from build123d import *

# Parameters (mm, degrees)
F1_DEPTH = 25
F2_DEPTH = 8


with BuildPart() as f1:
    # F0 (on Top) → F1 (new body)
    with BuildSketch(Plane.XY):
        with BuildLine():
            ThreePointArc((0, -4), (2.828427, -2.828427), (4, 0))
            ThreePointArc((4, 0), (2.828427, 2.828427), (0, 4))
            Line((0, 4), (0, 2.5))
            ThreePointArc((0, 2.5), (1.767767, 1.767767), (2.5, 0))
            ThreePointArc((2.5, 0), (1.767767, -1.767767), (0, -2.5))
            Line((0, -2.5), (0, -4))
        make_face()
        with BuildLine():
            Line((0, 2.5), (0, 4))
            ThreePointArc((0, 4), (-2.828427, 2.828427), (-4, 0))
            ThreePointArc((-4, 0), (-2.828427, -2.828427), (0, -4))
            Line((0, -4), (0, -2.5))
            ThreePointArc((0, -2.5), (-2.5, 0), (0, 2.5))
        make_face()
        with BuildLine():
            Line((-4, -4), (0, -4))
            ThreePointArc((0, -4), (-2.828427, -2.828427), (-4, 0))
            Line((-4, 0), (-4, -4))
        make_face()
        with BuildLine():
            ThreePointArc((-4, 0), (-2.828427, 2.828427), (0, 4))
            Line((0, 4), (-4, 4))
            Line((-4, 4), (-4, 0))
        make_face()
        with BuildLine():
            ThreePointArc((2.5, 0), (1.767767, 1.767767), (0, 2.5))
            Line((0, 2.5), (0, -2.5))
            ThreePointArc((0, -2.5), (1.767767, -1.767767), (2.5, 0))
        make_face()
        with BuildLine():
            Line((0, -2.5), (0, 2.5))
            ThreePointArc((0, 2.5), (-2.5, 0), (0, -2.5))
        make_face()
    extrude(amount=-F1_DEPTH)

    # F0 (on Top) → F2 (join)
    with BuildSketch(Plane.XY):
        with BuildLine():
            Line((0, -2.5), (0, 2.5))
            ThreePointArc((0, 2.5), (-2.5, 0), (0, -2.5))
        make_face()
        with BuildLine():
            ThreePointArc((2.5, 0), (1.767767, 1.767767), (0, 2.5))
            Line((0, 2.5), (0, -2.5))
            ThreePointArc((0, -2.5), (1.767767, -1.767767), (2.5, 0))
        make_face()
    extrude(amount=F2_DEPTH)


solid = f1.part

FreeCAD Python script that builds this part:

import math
import FreeCAD as App
import Part
import Sketcher

V = App.Vector
Q = App.Units.Quantity

doc = App.newDocument("Part")
params = doc.addObject("Spreadsheet::Sheet", "Params")
for row, (alias, value) in enumerate([
    ("sketch1_radius", "4 mm"),
    ("sketch1_width", "4 mm"),
    ("pad1_length", "25 mm"),
    ("sketch2_radius", "2.5 mm"),
    ("pad2_length", "8 mm"),
], start=1):
    params.set(f"A{row}", alias)
    params.set(f"B{row}", "=" + value)
    params.setAlias(f"B{row}", alias)

body = doc.addObject("PartDesign::Body", "Body")

sketch1 = body.newObject("Sketcher::SketchObject", "Sketch")
sketch1.AttachmentSupport = (doc.getObject("XY_Plane"), [""])
sketch1.MapMode = "FlatFace"
sketch1.addGeometry(Part.ArcOfCircle(Part.Circle(V(0, 0, 0), V(0, 0, 1), 4), math.radians(-90), math.radians(0)), False)
sketch1.addGeometry(Part.ArcOfCircle(Part.Circle(V(0, 0, 0), V(0, 0, 1), 4), math.radians(0), math.radians(90)), False)
sketch1.addGeometry(Part.LineSegment(V(0, 4, 0), V(-4, 4, 0)), False)
sketch1.addGeometry(Part.LineSegment(V(-4, 4, 0), V(-4, -4, 0)), False)
sketch1.addGeometry(Part.LineSegment(V(-4, -4, 0), V(0, -4, 0)), False)
sketch1.addConstraint(Sketcher.Constraint("Tangent", 0, 2, 1, 1))
sketch1.addConstraint(Sketcher.Constraint("Tangent", 1, 2, 2, 1))
sketch1.addConstraint(Sketcher.Constraint("Coincident", 2, 2, 3, 1))
sketch1.addConstraint(Sketcher.Constraint("Coincident", 3, 2, 4, 1))
sketch1.addConstraint(Sketcher.Constraint("Tangent", 4, 2, 0, 1))
sketch1.addConstraint(Sketcher.Constraint("Horizontal", 2))
sketch1.addConstraint(Sketcher.Constraint("Vertical", 3))
sketch1.addConstraint(Sketcher.Constraint("Horizontal", 4))
sketch1.addConstraint(Sketcher.Constraint("Coincident", 0, 3, -1, 1))
sketch1.addConstraint(Sketcher.Constraint("Equal", 0, 1))
sketch1.addConstraint(Sketcher.Constraint("PointOnObject", 0, 2, -1))
sketch1.addConstraint(Sketcher.Constraint("Radius", 0, Q("4 mm")))
sketch1.addConstraint(Sketcher.Constraint("DistanceX", 2, 2, 2, 1, Q("4 mm")))
sketch1.setExpression("Constraints[11]", "Params.sketch1_radius")
sketch1.setExpression("Constraints[12]", "Params.sketch1_width")
pad1 = body.newObject("PartDesign::Pad", "Pad")
pad1.Profile = sketch1
pad1.setExpression("Length", "Params.pad1_length")
pad1.Reversed = True

sketch2 = body.newObject("Sketcher::SketchObject", "Sketch001")
sketch2.AttachmentSupport = (doc.getObject("XY_Plane"), [""])
sketch2.MapMode = "FlatFace"
sketch2.addGeometry(Part.ArcOfCircle(Part.Circle(V(0, 0, 0), V(0, 0, 1), 2.5), math.radians(90), math.radians(270)), False)
sketch2.addGeometry(Part.ArcOfCircle(Part.Circle(V(0, 0, 0), V(0, 0, 1), 2.5), math.radians(-90), math.radians(0)), False)
sketch2.addGeometry(Part.ArcOfCircle(Part.Circle(V(0, 0, 0), V(0, 0, 1), 2.5), math.radians(0), math.radians(90)), False)
sketch2.addConstraint(Sketcher.Constraint("Tangent", 0, 2, 1, 1))
sketch2.addConstraint(Sketcher.Constraint("Tangent", 1, 2, 2, 1))
sketch2.addConstraint(Sketcher.Constraint("Tangent", 2, 2, 0, 1))
sketch2.addConstraint(Sketcher.Constraint("Coincident", 0, 3, -1, 1))
sketch2.addConstraint(Sketcher.Constraint("PointOnObject", 0, 2, -2))
sketch2.addConstraint(Sketcher.Constraint("PointOnObject", 1, 2, -1))
sketch2.addConstraint(Sketcher.Constraint("PointOnObject", 2, 2, -2))
sketch2.addConstraint(Sketcher.Constraint("Radius", 0, Q("2.5 mm")))
sketch2.setExpression("Constraints[7]", "Params.sketch2_radius")
pad2 = body.newObject("PartDesign::Pad", "Pad001")
pad2.Profile = sketch2
pad2.setExpression("Length", "Params.pad2_length")

doc.recompute()
